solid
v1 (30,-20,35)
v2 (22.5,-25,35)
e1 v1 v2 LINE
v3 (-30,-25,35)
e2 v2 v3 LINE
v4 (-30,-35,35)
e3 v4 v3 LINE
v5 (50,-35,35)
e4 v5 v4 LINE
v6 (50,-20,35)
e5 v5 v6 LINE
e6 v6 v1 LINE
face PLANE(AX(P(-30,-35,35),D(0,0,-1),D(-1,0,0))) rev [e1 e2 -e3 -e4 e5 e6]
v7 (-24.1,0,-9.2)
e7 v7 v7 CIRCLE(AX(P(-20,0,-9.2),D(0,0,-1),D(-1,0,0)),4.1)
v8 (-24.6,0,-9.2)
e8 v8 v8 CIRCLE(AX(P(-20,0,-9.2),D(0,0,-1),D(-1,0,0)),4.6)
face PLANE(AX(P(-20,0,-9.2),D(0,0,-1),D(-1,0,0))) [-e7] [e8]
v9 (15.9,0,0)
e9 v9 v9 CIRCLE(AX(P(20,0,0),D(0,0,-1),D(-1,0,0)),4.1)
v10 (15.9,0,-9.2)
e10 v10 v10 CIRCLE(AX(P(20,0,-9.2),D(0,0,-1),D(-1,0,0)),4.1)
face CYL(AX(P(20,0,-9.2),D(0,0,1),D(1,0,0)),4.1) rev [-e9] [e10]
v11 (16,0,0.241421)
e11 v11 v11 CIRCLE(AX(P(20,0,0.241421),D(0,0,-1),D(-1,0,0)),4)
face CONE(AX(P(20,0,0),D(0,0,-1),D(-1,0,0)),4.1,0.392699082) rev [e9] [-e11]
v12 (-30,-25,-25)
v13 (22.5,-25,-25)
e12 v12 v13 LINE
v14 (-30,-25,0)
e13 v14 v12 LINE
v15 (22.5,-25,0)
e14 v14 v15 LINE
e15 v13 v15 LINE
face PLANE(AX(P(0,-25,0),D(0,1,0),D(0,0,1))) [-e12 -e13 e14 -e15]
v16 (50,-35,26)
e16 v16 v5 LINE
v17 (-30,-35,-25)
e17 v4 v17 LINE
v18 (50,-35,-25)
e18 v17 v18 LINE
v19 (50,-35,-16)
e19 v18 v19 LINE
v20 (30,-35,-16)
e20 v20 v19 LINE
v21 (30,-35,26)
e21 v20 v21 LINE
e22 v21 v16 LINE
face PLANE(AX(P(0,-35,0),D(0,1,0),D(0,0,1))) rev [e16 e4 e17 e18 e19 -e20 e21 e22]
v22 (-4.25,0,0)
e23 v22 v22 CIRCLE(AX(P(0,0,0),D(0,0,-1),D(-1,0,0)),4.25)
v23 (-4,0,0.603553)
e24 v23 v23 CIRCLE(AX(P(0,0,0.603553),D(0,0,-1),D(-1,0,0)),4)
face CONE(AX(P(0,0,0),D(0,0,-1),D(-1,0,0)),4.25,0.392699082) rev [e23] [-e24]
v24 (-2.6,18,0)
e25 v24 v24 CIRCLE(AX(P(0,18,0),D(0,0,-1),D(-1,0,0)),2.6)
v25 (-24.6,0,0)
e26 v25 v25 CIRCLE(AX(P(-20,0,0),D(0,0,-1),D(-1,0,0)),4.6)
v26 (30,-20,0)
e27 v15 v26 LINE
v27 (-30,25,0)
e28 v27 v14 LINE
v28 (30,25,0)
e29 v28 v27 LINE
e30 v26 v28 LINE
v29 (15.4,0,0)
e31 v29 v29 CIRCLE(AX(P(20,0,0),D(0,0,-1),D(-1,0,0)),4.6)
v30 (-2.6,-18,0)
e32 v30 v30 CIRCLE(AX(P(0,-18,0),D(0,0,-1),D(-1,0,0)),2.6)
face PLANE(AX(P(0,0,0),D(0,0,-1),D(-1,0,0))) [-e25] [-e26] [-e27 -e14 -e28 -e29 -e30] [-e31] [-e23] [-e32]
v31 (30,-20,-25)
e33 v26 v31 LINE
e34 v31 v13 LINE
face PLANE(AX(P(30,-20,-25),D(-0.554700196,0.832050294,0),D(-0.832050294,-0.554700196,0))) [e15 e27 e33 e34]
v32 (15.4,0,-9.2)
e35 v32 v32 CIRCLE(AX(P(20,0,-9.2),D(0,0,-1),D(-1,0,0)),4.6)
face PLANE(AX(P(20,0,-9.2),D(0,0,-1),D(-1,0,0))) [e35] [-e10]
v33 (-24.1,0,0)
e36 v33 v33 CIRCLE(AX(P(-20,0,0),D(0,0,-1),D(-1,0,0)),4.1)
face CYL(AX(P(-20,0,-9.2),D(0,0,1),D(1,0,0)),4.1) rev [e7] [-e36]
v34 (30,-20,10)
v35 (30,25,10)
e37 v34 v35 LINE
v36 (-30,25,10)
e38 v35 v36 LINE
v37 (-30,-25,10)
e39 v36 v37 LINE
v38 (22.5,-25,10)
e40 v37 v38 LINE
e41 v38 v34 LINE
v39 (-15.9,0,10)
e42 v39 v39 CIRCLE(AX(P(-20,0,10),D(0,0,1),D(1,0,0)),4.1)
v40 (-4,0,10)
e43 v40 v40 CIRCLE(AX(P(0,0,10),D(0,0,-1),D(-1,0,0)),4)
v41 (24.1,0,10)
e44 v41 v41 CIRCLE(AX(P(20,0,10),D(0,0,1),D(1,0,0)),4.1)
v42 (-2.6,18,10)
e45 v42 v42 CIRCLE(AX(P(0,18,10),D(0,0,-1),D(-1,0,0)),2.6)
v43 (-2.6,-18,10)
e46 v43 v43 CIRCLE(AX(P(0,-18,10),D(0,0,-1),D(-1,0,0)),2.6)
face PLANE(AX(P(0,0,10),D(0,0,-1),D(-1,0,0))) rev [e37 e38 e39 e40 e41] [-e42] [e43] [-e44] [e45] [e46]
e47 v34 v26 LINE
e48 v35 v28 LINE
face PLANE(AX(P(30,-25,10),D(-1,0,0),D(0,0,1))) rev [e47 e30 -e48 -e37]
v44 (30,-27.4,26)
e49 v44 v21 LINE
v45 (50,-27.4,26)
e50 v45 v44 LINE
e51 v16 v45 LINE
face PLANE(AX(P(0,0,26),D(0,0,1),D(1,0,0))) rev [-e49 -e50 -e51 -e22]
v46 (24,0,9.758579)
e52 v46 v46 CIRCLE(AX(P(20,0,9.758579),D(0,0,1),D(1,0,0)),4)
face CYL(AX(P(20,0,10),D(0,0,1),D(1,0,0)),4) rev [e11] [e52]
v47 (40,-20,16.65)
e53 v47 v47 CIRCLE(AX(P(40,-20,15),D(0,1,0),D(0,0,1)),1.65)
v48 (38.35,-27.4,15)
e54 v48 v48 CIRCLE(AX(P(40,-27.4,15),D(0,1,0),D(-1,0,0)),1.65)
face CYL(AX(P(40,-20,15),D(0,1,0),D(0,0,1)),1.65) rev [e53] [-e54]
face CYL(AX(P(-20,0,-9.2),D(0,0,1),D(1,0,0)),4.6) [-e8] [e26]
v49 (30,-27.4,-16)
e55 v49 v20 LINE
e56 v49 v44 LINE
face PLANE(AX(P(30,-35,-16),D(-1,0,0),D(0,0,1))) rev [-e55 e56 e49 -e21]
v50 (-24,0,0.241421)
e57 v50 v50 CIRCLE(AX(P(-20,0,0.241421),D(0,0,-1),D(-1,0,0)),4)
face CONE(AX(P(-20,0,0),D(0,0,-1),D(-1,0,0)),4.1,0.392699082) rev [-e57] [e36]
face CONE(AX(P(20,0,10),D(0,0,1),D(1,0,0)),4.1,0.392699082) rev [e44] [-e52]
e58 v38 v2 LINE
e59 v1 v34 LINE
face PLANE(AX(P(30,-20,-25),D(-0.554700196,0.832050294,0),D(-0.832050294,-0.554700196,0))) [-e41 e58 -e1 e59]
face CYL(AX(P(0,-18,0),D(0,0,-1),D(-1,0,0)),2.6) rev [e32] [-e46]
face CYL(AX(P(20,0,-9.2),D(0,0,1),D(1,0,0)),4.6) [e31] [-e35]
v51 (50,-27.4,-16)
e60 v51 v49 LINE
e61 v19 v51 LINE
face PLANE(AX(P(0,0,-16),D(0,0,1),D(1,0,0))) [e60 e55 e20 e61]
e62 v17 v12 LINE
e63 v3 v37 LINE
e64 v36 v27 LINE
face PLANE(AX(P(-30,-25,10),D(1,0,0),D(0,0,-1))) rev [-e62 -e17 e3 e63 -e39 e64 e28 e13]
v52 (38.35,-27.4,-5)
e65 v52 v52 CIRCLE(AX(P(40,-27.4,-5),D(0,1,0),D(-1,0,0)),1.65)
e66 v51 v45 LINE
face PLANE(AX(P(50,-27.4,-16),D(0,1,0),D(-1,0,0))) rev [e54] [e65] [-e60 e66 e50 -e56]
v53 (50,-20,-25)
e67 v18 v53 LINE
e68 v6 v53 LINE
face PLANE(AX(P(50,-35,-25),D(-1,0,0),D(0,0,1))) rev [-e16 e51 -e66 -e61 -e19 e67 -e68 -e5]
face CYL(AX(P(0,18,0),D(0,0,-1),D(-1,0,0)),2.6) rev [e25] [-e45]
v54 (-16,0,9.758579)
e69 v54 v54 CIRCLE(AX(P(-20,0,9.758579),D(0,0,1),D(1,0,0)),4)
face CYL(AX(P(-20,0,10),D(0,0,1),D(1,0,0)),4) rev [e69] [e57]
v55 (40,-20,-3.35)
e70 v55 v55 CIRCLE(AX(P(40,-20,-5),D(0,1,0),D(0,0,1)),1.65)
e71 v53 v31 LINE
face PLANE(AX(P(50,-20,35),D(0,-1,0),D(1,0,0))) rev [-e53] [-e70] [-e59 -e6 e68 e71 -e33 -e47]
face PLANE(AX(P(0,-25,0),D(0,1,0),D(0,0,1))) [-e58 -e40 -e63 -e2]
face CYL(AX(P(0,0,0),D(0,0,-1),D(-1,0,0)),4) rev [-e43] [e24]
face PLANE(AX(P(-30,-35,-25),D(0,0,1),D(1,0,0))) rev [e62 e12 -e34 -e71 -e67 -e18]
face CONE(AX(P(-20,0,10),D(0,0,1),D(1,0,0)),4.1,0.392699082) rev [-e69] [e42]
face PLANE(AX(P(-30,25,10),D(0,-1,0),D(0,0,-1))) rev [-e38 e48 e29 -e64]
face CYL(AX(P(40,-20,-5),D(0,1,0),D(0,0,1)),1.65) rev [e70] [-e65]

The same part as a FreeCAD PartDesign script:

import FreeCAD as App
import Part
import Sketcher


def add_polygon(sketch, points):
    """Adds a closed chain of lines whose ends are joined by coincident constraints."""
    first, n = sketch.GeometryCount, len(points)
    for a, b in zip(points, points[1:] + points[:1]):
        sketch.addGeometry(Part.LineSegment(App.Vector(*a, 0), App.Vector(*b, 0)), False)
    for i in range(n):
        sketch.addConstraint(Sketcher.Constraint("Coincident", first + i, 2, first + (i + 1) % n, 1))

doc = App.newDocument("Part")
body = doc.addObject("PartDesign::Body", "Body")

# Sketch on XY plane
sketch1 = body.newObject("Sketcher::SketchObject", "Sketch")
sketch1.AttachmentSupport = (doc.getObject("XY_Plane"), [""])
sketch1.MapMode = "FlatFace"
add_polygon(sketch1, [(-30, 25), (-30, -25), (30, -25), (30, 25)])  # lines 0-3
sketch1.addConstraint([
    Sketcher.Constraint("Vertical", 0),
    Sketcher.Constraint("Horizontal", 1),
    Sketcher.Constraint("Vertical", 2),
    Sketcher.Constraint("Horizontal", 3),
    Sketcher.Constraint("Symmetric", 0, 2, 2, 2, -1, 1),
    Sketcher.Constraint("DistanceX", 1, 1, 1, 2, 60.0),
    Sketcher.Constraint("DistanceY", 0, 2, 0, 1, 50.0),
])
pad1 = body.newObject("PartDesign::Pad", "Pad")
pad1.Profile = sketch1
pad1.Length = 10

# Sketch on XY plane
sketch2 = body.newObject("Sketcher::SketchObject", "Sketch001")
sketch2.AttachmentSupport = (doc.getObject("XY_Plane"), [""])
sketch2.MapMode = "FlatFace"
sketch2.AttachmentOffset = App.Placement(App.Vector(0, 0, 10), App.Rotation())
sketch2.addGeometry([
    Part.Circle(App.Vector(20, 0, 0), App.Vector(0, 0, 1), 4),
    Part.Circle(App.Vector(-20, 0, 0), App.Vector(0, 0, 1), 4),
], False)
sketch2.addConstraint([
    Sketcher.Constraint("Equal", 0, 1),
    Sketcher.Constraint("Symmetric", 0, 3, 1, 3, -1, 1),
    Sketcher.Constraint("PointOnObject", 0, 3, -1),
    Sketcher.Constraint("Diameter", 0, 8.0),
    Sketcher.Constraint("DistanceX", -1, 1, 0, 3, 20.0),
])
doc.recompute()
hole = body.newObject("PartDesign::Hole", "Hole")
hole.Profile = sketch2
hole.ThreadType = "None"
hole.Diameter = 8
hole.DepthType = "ThroughAll"
hole.HoleCutType = "Countersink"
hole.HoleCutDiameter = 8.2
hole.HoleCutCountersinkAngle = 45

# Sketch on XY plane
sketch3 = body.newObject("Sketcher::SketchObject", "Sketch002")
sketch3.AttachmentSupport = (doc.getObject("XY_Plane"), [""])
sketch3.MapMode = "FlatFace"
sketch3.addGeometry([
    Part.Circle(App.Vector(0, 18, 0), App.Vector(0, 0, 1), 2.6),
    Part.Circle(App.Vector(0, -18, 0), App.Vector(0, 0, 1), 2.6),
], False)
sketch3.addConstraint([
    Sketcher.Constraint("Equal", 0, 1),
    Sketcher.Constraint("Symmetric", 0, 3, 1, 3, -1, 1),
    Sketcher.Constraint("PointOnObject", 0, 3, -2),
    Sketcher.Constraint("Diameter", 0, 5.2),
    Sketcher.Constraint("DistanceY", -1, 1, 0, 3, 18.0),
])
doc.recompute()
hole2 = body.newObject("PartDesign::Hole", "Hole001")
hole2.Profile = sketch3
hole2.ThreadType = "None"
hole2.Diameter = 5.2
hole2.DepthType = "ThroughAll"
hole2.Reversed = True

# Sketch on XZ plane
sketch4 = body.newObject("Sketcher::SketchObject", "Sketch003")
sketch4.AttachmentSupport = (doc.getObject("XZ_Plane"), [""])
sketch4.MapMode = "FlatFace"
sketch4.AttachmentOffset = App.Placement(App.Vector(0, 0, 25), App.Rotation())
add_polygon(sketch4, [(-30, 35), (-30, -25), (50, -25), (50, 35)])  # lines 0-3
sketch4.addConstraint([
    Sketcher.Constraint("Vertical", 0),
    Sketcher.Constraint("Horizontal", 1),
    Sketcher.Constraint("Vertical", 2),
    Sketcher.Constraint("Horizontal", 3),
    Sketcher.Constraint("DistanceX", 1, 1, 1, 2, 80.0),
    Sketcher.Constraint("DistanceY", 0, 2, 0, 1, 60.0),
    Sketcher.Constraint("DistanceX", 0, 2, -1, 1, 30.0),
    Sketcher.Constraint("DistanceY", 0, 2, -1, 1, 25.0),
])
pad2 = body.newObject("PartDesign::Pad", "Pad001")
pad2.Profile = sketch4
pad2.Length = 10

# Sketch on XY plane
sketch5 = body.newObject("Sketcher::SketchObject", "Sketch004")
sketch5.AttachmentSupport = (doc.getObject("XY_Plane"), [""])
sketch5.MapMode = "FlatFace"
sketch5.AttachmentOffset = App.Placement(App.Vector(0, 0, 5), App.Rotation())
add_polygon(sketch5, [(30, -27.4), (30, -35), (50, -35), (50, -27.4)])  # lines 0-3
sketch5.addConstraint([
    Sketcher.Constraint("Vertical", 0),
    Sketcher.Constraint("Horizontal", 1),
    Sketcher.Constraint("Vertical", 2),
    Sketcher.Constraint("Horizontal", 3),
    Sketcher.Constraint("DistanceX", 1, 1, 1, 2, 20.0),
    Sketcher.Constraint("DistanceY", 0, 2, 0, 1, 7.6),
    Sketcher.Constraint("DistanceX", -1, 1, 0, 2, 30.0),
    Sketcher.Constraint("DistanceY", 0, 2, -1, 1, 35.0),
])
pocket1 = body.newObject("PartDesign::Pocket", "Pocket")
pocket1.Profile = sketch5
pocket1.Length = 42
pocket1.Midplane = True

# Sketch on XY plane
sketch6 = body.newObject("Sketcher::SketchObject", "Sketch005")
sketch6.AttachmentSupport = (doc.getObject("XY_Plane"), [""])
sketch6.MapMode = "FlatFace"
sketch6.AttachmentOffset = App.Placement(App.Vector(0, 0, 5), App.Rotation())
add_polygon(sketch6, [(30, -20), (30, -25), (50, -25), (50, -20)])  # lines 0-3
sketch6.addConstraint([
    Sketcher.Constraint("Vertical", 0),
    Sketcher.Constraint("Horizontal", 1),
    Sketcher.Constraint("Vertical", 2),
    Sketcher.Constraint("Horizontal", 3),
    Sketcher.Constraint("DistanceX", 1, 1, 1, 2, 20.0),
    Sketcher.Constraint("DistanceY", 0, 2, 0, 1, 5.0),
    Sketcher.Constraint("DistanceX", -1, 1, 0, 2, 30.0),
    Sketcher.Constraint("DistanceY", 0, 2, -1, 1, 25.0),
])
pad3 = body.newObject("PartDesign::Pad", "Pad002")
pad3.Profile = sketch6
pad3.Length = 60
pad3.Midplane = True

# Sketch on XZ plane
sketch7 = body.newObject("Sketcher::SketchObject", "Sketch006")
sketch7.AttachmentSupport = (doc.getObject("XZ_Plane"), [""])
sketch7.MapMode = "FlatFace"
sketch7.AttachmentOffset = App.Placement(App.Vector(0, 0, 20), App.Rotation())
sketch7.addGeometry([
    Part.Circle(App.Vector(40, 15, 0), App.Vector(0, 0, 1), 1.65),
    Part.Circle(App.Vector(40, -5, 0), App.Vector(0, 0, 1), 1.65),
], False)
sketch7.addConstraint([
    Sketcher.Constraint("Equal", 0, 1),
    Sketcher.Constraint("Vertical", 0, 3, 1, 3),
    Sketcher.Constraint("Diameter", 0, 3.3),
    Sketcher.Constraint("DistanceX", -1, 1, 0, 3, 40.0),
    Sketcher.Constraint("DistanceY", -1, 1, 0, 3, 15.0),
    Sketcher.Constraint("DistanceY", 1, 3, -1, 1, 5.0),
])
doc.recompute()
hole3 = body.newObject("PartDesign::Hole", "Hole002")
hole3.Profile = sketch7
hole3.ThreadType = "None"
hole3.Diameter = 3.3
hole3.DepthType = "ThroughAll"
hole3.Reversed = True

# Sketch on XY plane
sketch8 = body.newObject("Sketcher::SketchObject", "Sketch007")
sketch8.AttachmentSupport = (doc.getObject("XY_Plane"), [""])
sketch8.MapMode = "FlatFace"
sketch8.AttachmentOffset = App.Placement(App.Vector(0, 0, -25), App.Rotation())
add_polygon(sketch8, [(30, -20), (22.5, -25), (30, -25)])  # lines 0-2
sketch8.addConstraint([
    Sketcher.Constraint("Horizontal", 1),
    Sketcher.Constraint("Vertical", 2),
    Sketcher.Constraint("DistanceY", 2, 1, 2, 2, 5.0),
    Sketcher.Constraint("DistanceX", 1, 1, 1, 2, 7.5),
    Sketcher.Constraint("DistanceY", 0, 2, -1, 1, 25.0),
    Sketcher.Constraint("DistanceX", -1, 1, 1, 2, 30.0),
])
pad4 = body.newObject("PartDesign::Pad", "Pad003")
pad4.Profile = sketch8
pad4.Length = 60

# Sketch on XY plane
sketch9 = body.newObject("Sketcher::SketchObject", "Sketch008")
sketch9.AttachmentSupport = (doc.getObject("XY_Plane"), [""])
sketch9.MapMode = "FlatFace"
sketch9.addGeometry(Part.Circle(App.Vector(0, 0, 0), App.Vector(0, 0, 1), 4), False)
sketch9.addConstraint([
    Sketcher.Constraint("Coincident", 0, 3, -1, 1),
    Sketcher.Constraint("Diameter", 0, 8.0),
])
doc.recompute()
hole4 = body.newObject("PartDesign::Hole", "Hole003")
hole4.Profile = sketch9
hole4.ThreadType = "None"
hole4.Diameter = 8
hole4.DepthType = "ThroughAll"
hole4.HoleCutType = "Countersink"
hole4.HoleCutDiameter = 8.5
hole4.HoleCutCountersinkAngle = 45
hole4.Reversed = True

# Sketch on XY plane
sketch10 = body.newObject("Sketcher::SketchObject", "Sketch009")
sketch10.AttachmentSupport = (doc.getObject("XY_Plane"), [""])
sketch10.MapMode = "FlatFace"
sketch10.addGeometry([
    Part.Circle(App.Vector(20, 0, 0), App.Vector(0, 0, 1), 4),
    Part.Circle(App.Vector(-20, 0, 0), App.Vector(0, 0, 1), 4),
], False)
sketch10.addConstraint([
    Sketcher.Constraint("Equal", 0, 1),
    Sketcher.Constraint("Symmetric", 0, 3, 1, 3, -1, 1),
    Sketcher.Constraint("PointOnObject", 0, 3, -1),
    Sketcher.Constraint("Diameter", 0, 8.0),
    Sketcher.Constraint("DistanceX", -1, 1, 0, 3, 20.0),
])
doc.recompute()
hole5 = body.newObject("PartDesign::Hole", "Hole004")
hole5.Profile = sketch10
hole5.ThreadType = "None"
hole5.Diameter = 8
hole5.DepthType = "ThroughAll"
hole5.HoleCutType = "Countersink"
hole5.HoleCutDiameter = 8.2
hole5.HoleCutCountersinkAngle = 45
hole5.Reversed = True

# Sketch on XY plane
sketch11 = body.newObject("Sketcher::SketchObject", "Sketch010")
sketch11.AttachmentSupport = (doc.getObject("XY_Plane"), [""])
sketch11.MapMode = "FlatFace"
sketch11.addGeometry([
    Part.Circle(App.Vector(20, 0, 0), App.Vector(0, 0, 1), 4.6),
    Part.Circle(App.Vector(20, 0, 0), App.Vector(0, 0, 1), 4.1),
    Part.Circle(App.Vector(-20, 0, 0), App.Vector(0, 0, 1), 4.6),
    Part.Circle(App.Vector(-20, 0, 0), App.Vector(0, 0, 1), 4.1),
], False)
sketch11.addConstraint([
    Sketcher.Constraint("Coincident", 1, 3, 0, 3),
    Sketcher.Constraint("Coincident", 3, 3, 2, 3),
    Sketcher.Constraint("Equal", 0, 2),
    Sketcher.Constraint("Equal", 1, 3),
    Sketcher.Constraint("Symmetric", 0, 3, 2, 3, -1, 1),
    Sketcher.Constraint("PointOnObject", 0, 3, -1),
    Sketcher.Constraint("Diameter", 0, 9.2),
    Sketcher.Constraint("Diameter", 1, 8.2),
    Sketcher.Constraint("DistanceX", -1, 1, 0, 3, 20.0),
])
pad5 = body.newObject("PartDesign::Pad", "Pad004")
pad5.Profile = sketch11
pad5.Length = 9.2
pad5.Reversed = True

doc.recompute()
